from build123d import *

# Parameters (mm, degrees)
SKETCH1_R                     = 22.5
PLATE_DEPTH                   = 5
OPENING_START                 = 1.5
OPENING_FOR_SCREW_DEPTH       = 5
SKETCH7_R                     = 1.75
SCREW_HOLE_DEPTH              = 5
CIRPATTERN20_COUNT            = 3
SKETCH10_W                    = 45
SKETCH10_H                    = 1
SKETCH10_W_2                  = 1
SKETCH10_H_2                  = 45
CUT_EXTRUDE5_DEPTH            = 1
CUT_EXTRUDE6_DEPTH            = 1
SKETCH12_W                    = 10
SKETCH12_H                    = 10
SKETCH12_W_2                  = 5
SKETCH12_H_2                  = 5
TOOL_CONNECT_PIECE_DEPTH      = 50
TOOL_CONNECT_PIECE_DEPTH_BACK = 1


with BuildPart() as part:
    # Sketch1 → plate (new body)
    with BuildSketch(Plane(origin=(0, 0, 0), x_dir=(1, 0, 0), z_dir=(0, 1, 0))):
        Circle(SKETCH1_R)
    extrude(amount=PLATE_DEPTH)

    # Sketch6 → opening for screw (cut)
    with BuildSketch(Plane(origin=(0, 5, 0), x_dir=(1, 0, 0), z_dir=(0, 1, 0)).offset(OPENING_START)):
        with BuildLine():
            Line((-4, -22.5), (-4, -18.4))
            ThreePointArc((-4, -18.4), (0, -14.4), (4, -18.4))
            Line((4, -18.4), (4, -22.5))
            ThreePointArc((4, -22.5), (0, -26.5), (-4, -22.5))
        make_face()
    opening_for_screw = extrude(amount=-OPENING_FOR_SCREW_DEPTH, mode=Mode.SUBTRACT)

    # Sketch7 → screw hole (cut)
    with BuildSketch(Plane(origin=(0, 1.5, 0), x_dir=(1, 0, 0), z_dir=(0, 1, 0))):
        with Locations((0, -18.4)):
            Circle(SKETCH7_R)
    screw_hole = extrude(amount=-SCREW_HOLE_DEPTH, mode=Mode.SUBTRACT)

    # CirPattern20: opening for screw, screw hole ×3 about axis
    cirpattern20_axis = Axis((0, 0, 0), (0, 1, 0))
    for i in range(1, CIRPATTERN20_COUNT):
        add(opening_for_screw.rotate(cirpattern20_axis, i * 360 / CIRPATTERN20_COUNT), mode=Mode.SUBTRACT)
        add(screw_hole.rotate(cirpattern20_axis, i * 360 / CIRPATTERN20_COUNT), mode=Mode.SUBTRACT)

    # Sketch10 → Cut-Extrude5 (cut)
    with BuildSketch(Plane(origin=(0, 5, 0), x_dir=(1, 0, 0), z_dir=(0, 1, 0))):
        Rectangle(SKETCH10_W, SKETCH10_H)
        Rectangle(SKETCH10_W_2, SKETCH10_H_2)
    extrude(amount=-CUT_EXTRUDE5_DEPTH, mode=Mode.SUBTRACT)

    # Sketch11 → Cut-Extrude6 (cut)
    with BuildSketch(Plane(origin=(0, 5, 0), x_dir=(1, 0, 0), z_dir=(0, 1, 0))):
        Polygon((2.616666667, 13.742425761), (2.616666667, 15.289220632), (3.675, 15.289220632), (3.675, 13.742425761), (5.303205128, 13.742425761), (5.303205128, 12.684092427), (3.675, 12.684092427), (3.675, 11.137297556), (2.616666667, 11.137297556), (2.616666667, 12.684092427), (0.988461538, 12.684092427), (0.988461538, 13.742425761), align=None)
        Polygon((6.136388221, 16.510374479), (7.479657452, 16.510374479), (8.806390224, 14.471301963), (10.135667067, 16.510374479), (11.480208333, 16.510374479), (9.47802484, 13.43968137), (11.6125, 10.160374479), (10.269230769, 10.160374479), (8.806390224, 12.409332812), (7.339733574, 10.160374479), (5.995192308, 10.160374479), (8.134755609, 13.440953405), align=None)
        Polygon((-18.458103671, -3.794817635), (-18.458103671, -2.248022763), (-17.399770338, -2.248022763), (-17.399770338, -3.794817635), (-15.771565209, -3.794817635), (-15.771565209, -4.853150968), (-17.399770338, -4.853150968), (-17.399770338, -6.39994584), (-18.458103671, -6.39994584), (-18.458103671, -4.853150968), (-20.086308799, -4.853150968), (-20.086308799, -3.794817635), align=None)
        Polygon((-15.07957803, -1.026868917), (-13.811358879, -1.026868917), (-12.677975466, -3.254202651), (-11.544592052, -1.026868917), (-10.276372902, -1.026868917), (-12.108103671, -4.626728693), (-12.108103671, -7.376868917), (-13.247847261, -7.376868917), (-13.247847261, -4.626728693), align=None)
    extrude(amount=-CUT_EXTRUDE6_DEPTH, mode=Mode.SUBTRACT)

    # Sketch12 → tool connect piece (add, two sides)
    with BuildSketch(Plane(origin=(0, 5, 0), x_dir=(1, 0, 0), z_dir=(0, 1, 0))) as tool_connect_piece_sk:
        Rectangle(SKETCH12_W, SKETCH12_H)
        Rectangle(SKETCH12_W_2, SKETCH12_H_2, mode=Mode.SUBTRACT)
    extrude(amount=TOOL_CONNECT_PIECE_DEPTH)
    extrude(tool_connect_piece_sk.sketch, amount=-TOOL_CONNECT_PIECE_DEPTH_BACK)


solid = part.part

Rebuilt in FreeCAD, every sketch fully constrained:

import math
import FreeCAD as App
import Part
import Sketcher

V = App.Vector


def add_polygon(sketch, points):
    """Adds a closed chain of lines whose ends are joined by coincident constraints."""
    first, n = sketch.GeometryCount, len(points)
    for a, b in zip(points, points[1:] + points[:1]):
        sketch.addGeometry(Part.LineSegment(App.Vector(*a, 0), App.Vector(*b, 0)), False)
    for i in range(n):
        sketch.addConstraint(Sketcher.Constraint("Coincident", first + i, 2, first + (i + 1) % n, 1))

doc = App.newDocument("Part")
body = doc.addObject("PartDesign::Body", "Body")

# Sketch on XZ plane
sketch1 = body.newObject("Sketcher::SketchObject", "Sketch")
sketch1.AttachmentSupport = (doc.getObject("XZ_Plane"), [""])
sketch1.MapMode = "FlatFace"
sketch1.addGeometry(Part.Circle(V(0, 0, 0), V(0, 0, 1), 22.5), False)
sketch1.addConstraint(Sketcher.Constraint("Coincident", 0, 3, -1, 1))
sketch1.addConstraint(Sketcher.Constraint("Diameter", 0, 45.0))
pad1 = body.newObject("PartDesign::Pad", "Pad")
pad1.Profile = sketch1
pad1.Length = 5
pad1.Reversed = True

# Sketch on XZ plane
sketch2 = body.newObject("Sketcher::SketchObject", "Sketch001")
sketch2.AttachmentSupport = (doc.getObject("XZ_Plane"), [""])
sketch2.MapMode = "FlatFace"
sketch2.AttachmentOffset = App.Placement(V(0, 0, -6.5), App.Rotation())
sketch2.addGeometry(Part.LineSegment(V(-4, 18.4, 0), V(-4, 22.5, 0)), False)
sketch2.addGeometry(Part.ArcOfCircle(Part.Circle(V(0, 22.5, 0), V(0, 0, 1), 4), math.radians(0), math.radians(180)), False)
sketch2.addGeometry(Part.LineSegment(V(4, 22.5, 0), V(4, 18.4, 0)), False)
sketch2.addGeometry(Part.ArcOfCircle(Part.Circle(V(0, 18.4, 0), V(0, 0, 1), 4), math.radians(180), math.radians(360)), False)
sketch2.addConstraint(Sketcher.Constraint("Tangent", 0, 2, 1, 2))
sketch2.addConstraint(Sketcher.Constraint("Tangent", 1, 1, 2, 1))
sketch2.addConstraint(Sketcher.Constraint("Tangent", 2, 2, 3, 2))
sketch2.addConstraint(Sketcher.Constraint("Tangent", 3, 1, 0, 1))
sketch2.addConstraint(Sketcher.Constraint("Vertical", 0))
sketch2.addConstraint(Sketcher.Constraint("Vertical", 2))
sketch2.addConstraint(Sketcher.Constraint("PointOnObject", 1, 3, -2))
sketch2.addConstraint(Sketcher.Constraint("Radius", 1, 4.0))
sketch2.addConstraint(Sketcher.Constraint("DistanceY", 0, 1, 0, 2, 4.1))
sketch2.addConstraint(Sketcher.Constraint("DistanceY", -1, 1, 1, 3, 22.5))
pocket1 = body.newObject("PartDesign::Pocket", "Pocket")
pocket1.Profile = sketch2
pocket1.Length = 5
pocket1.Reversed = True

# Sketch on XZ plane
sketch3 = body.newObject("Sketcher::SketchObject", "Sketch002")
sketch3.AttachmentSupport = (doc.getObject("XZ_Plane"), [""])
sketch3.MapMode = "FlatFace"
sketch3.AttachmentOffset = App.Placement(V(0, 0, -1.5), App.Rotation())
sketch3.addGeometry(Part.Circle(V(0, 18.4, 0), V(0, 0, 1), 1.75), False)
sketch3.addConstraint(Sketcher.Constraint("PointOnObject", 0, 3, -2))
sketch3.addConstraint(Sketcher.Constraint("Diameter", 0, 3.5))
sketch3.addConstraint(Sketcher.Constraint("DistanceY", -1, 1, 0, 3, 18.4))
pocket2 = body.newObject("PartDesign::Pocket", "Pocket001")
pocket2.Profile = sketch3
pocket2.Length = 5
pocket2.Reversed = True
doc.recompute()

polarpattern = body.newObject("PartDesign::PolarPattern", "PolarPattern")
polarpattern.Originals = [pocket1, pocket2]
polarpattern.Axis = (doc.getObject("Y_Axis"), [""])
polarpattern.Angle = 360
polarpattern.Occurrences = 3
body.Tip = polarpattern

# Sketch on XZ plane
sketch4 = body.newObject("Sketcher::SketchObject", "Sketch003")
sketch4.AttachmentSupport = (doc.getObject("XZ_Plane"), [""])
sketch4.MapMode = "FlatFace"
sketch4.AttachmentOffset = App.Placement(V(0, 0, -5), App.Rotation())
add_polygon(sketch4, [(-22.5, -0.5), (-22.5, 0.5), (-0.5, 0.5), (-0.5, 22.5), (0.5, 22.5), (0.5, 0.5), (22.5, 0.5), (22.5, -0.5), (0.5, -0.5), (0.5, -22.5), (-0.5, -22.5), (-0.5, -0.5)])  # lines 0-11
sketch4.addConstraint(Sketcher.Constraint("Vertical", 0))
sketch4.addConstraint(Sketcher.Constraint("Horizontal", 1))
sketch4.addConstraint(Sketcher.Constraint("Vertical", 2))
sketch4.addConstraint(Sketcher.Constraint("Horizontal", 3))
sketch4.addConstraint(Sketcher.Constraint("Vertical", 4))
sketch4.addConstraint(Sketcher.Constraint("Horizontal", 5))
sketch4.addConstraint(Sketcher.Constraint("Vertical", 6))
sketch4.addConstraint(Sketcher.Constraint("Horizontal", 7))
sketch4.addConstraint(Sketcher.Constraint("Vertical", 8))
sketch4.addConstraint(Sketcher.Constraint("Horizontal", 9))
sketch4.addConstraint(Sketcher.Constraint("Vertical", 10))
sketch4.addConstraint(Sketcher.Constraint("Horizontal", 11))
sketch4.addConstraint(Sketcher.Constraint("Symmetric", 0, 2, 6, 2, -1, 1))
sketch4.addConstraint(Sketcher.Constraint("Symmetric", 2, 2, 8, 2, -1, 1))
sketch4.addConstraint(Sketcher.Constraint("Symmetric", 4, 2, 10, 2, -1, 1))
sketch4.addConstraint(Sketcher.Constraint("Symmetric", 1, 2, 4, 2, -2))
sketch4.addConstraint(Sketcher.Constraint("Equal", 9, 0))
sketch4.addConstraint(Sketcher.Constraint("Equal", 11, 2))
sketch4.addConstraint(Sketcher.Constraint("DistanceX", 1, 1, 1, 2, 22.0))
sketch4.addConstraint(Sketcher.Constraint("DistanceX", 3, 1, 3, 2, 1.0))
pocket3 = body.newObject("PartDesign::Pocket", "Pocket002")
pocket3.Profile = sketch4
pocket3.Length = 1
pocket3.Reversed = True

# Sketch on XZ plane
sketch5 = body.newObject("Sketcher::SketchObject", "Sketch004")
sketch5.AttachmentSupport = (doc.getObject("XZ_Plane"), [""])
sketch5.MapMode = "FlatFace"
sketch5.AttachmentOffset = App.Placement(V(0, 0, -5), App.Rotation())
add_polygon(sketch5, [(2.616667, -15.289221), (2.616667, -13.742426), (0.988462, -13.742426), (0.988462, -12.684092), (2.616667, -12.684092), (2.616667, -11.137298), (3.675, -11.137298), (3.675, -12.684092), (5.303205, -12.684092), (5.303205, -13.742426), (3.675, -13.742426), (3.675, -15.289221)])  # lines 0-11
add_polygon(sketch5, [(7.479657, -16.510374), (6.136388, -16.510374), (8.134756, -13.440953), (5.995192, -10.160374), (7.339734, -10.160374), (8.80639, -12.409333), (10.269231, -10.160374), (11.6125, -10.160374), (9.478025, -13.439681), (11.480208, -16.510374), (10.135667, -16.510374), (8.80639, -14.471302)])  # lines 12-23
add_polygon(sketch5, [(-18.458104, 2.248023), (-18.458104, 3.794818), (-20.086309, 3.794818), (-20.086309, 4.853151), (-18.458104, 4.853151), (-18.458104, 6.399946), (-17.39977, 6.399946), (-17.39977, 4.853151), (-15.771565, 4.853151), (-15.771565, 3.794818), (-17.39977, 3.794818), (-17.39977, 2.248023)])  # lines 24-35
add_polygon(sketch5, [(-13.811359, 1.026869), (-15.079578, 1.026869), (-13.247847, 4.626729), (-13.247847, 7.376869), (-12.108104, 7.376869), (-12.108104, 4.626729), (-10.276373, 1.026869), (-11.544592, 1.026869), (-12.677975, 3.254203)])  # lines 36-44
sketch5.addConstraint(Sketcher.Constraint("Vertical", 0))
sketch5.addConstraint(Sketcher.Constraint("Horizontal", 1))
sketch5.addConstraint(Sketcher.Constraint("Vertical", 2))
sketch5.addConstraint(Sketcher.Constraint("Horizontal", 3))
sketch5.addConstraint(Sketcher.Constraint("Vertical", 4))
sketch5.addConstraint(Sketcher.Constraint("Horizontal", 5))
sketch5.addConstraint(Sketcher.Constraint("Vertical", 6))
sketch5.addConstraint(Sketcher.Constraint("Horizontal", 7))
sketch5.addConstraint(Sketcher.Constraint("Vertical", 8))
sketch5.addConstraint(Sketcher.Constraint("Horizontal", 9))
sketch5.addConstraint(Sketcher.Constraint("Vertical", 10))
sketch5.addConstraint(Sketcher.Constraint("Horizontal", 11))
sketch5.addConstraint(Sketcher.Constraint("Horizontal", 12))
sketch5.addConstraint(Sketcher.Constraint("Horizontal", 15))
sketch5.addConstraint(Sketcher.Constraint("Horizontal", 18))
sketch5.addConstraint(Sketcher.Constraint("Horizontal", 21))
sketch5.addConstraint(Sketcher.Constraint("Vertical", 24))
sketch5.addConstraint(Sketcher.Constraint("Horizontal", 25))
sketch5.addConstraint(Sketcher.Constraint("Vertical", 26))
sketch5.addConstraint(Sketcher.Constraint("Horizontal", 27))
sketch5.addConstraint(Sketcher.Constraint("Vertical", 28))
sketch5.addConstraint(Sketcher.Constraint("Horizontal", 29))
sketch5.addConstraint(Sketcher.Constraint("Vertical", 30))
sketch5.addConstraint(Sketcher.Constraint("Horizontal", 31))
sketch5.addConstraint(Sketcher.Constraint("Vertical", 32))
sketch5.addConstraint(Sketcher.Constraint("Horizontal", 33))
sketch5.addConstraint(Sketcher.Constraint("Vertical", 34))
sketch5.addConstraint(Sketcher.Constraint("Horizontal", 35))
sketch5.addConstraint(Sketcher.Constraint("Horizontal", 36))
sketch5.addConstraint(Sketcher.Constraint("Vertical", 38))
sketch5.addConstraint(Sketcher.Constraint("Horizontal", 39))
sketch5.addConstraint(Sketcher.Constraint("Vertical", 40))
sketch5.addConstraint(Sketcher.Constraint("Horizontal", 42))
sketch5.addConstraint(Sketcher.Constraint("Horizontal", 3, 2, 6, 2))
sketch5.addConstraint(Sketcher.Constraint("Horizontal", 1, 2, 8, 2))
sketch5.addConstraint(Sketcher.Constraint("Horizontal", 15, 2, 17, 2))
sketch5.addConstraint(Sketcher.Constraint("Horizontal", 12, 2, 20, 2))
sketch5.addConstraint(Sketcher.Constraint("Horizontal", 27, 2, 30, 2))
sketch5.addConstraint(Sketcher.Constraint("Horizontal", 25, 2, 32, 2))
sketch5.addConstraint(Sketcher.Constraint("Horizontal", 37, 2, 40, 2))
sketch5.addConstraint(Sketcher.Constraint("Horizontal", 36, 2, 41, 2))
sketch5.addConstraint(Sketcher.Constraint("Vertical", 0, 2, 3, 2))
sketch5.addConstraint(Sketcher.Constraint("Vertical", 6, 2, 9, 2))
sketch5.addConstraint(Sketcher.Constraint("Vertical", 16, 2, 22, 2))
sketch5.addConstraint(Sketcher.Constraint("Vertical", 24, 2, 27, 2))
sketch5.addConstraint(Sketcher.Constraint("Vertical", 30, 2, 33, 2))
sketch5.addConstraint(Sketcher.Constraint("Equal", 3, 7))
sketch5.addConstraint(Sketcher.Constraint("Equal", 12, 18))
sketch5.addConstraint(Sketcher.Constraint("Equal", 15, 21))
sketch5.addConstraint(Sketcher.Constraint("Equal", 9, 25))
sketch5.addConstraint(Sketcher.Constraint("Equal", 11, 29))
sketch5.addConstraint(Sketcher.Constraint("Equal", 27, 31))
sketch5.addConstraint(Sketcher.Constraint("Equal", 36, 42))
sketch5.addConstraint(Sketcher.Constraint("Equal", 35, 2))
sketch5.addConstraint(Sketcher.Constraint("Equal", 0, 4))
sketch5.addConstraint(Sketcher.Constraint("Equal", 10, 24))
sketch5.addConstraint(Sketcher.Constraint("Equal", 8, 26))
sketch5.addConstraint(Sketcher.Constraint("Equal", 24, 28))
sketch5.addConstraint(Sketcher.Constraint("Equal", 37, 41))
sketch5.addConstraint(Sketcher.Constraint("Equal", 43, 44))
sketch5.addConstraint(Sketcher.Constraint("DistanceY", 20, 2, 18, 2, 6.35))
sketch5.addConstraint(Sketcher.Constraint("DistanceY", 41, 2, 39, 2, 6.35))
sketch5.addConstraint(Sketcher.Constraint("DistanceX", -1, 1, 5, 2, 3.675))
sketch5.addConstraint(Sketcher.Constraint("Distance", 23, 2.432701))
sketch5.addConstraint(Sketcher.Constraint("DistanceX", 12, 2, 12, 1, 1.343269))
sketch5.addConstraint(Sketcher.Constraint("DistanceX", 15, 1, 15, 2, 1.344541))
sketch5.addConstraint(Sketcher.Constraint("DistanceX", 36, 2, 36, 1, 1.268219))
sketch5.addConstraint(Sketcher.Constraint("DistanceY", 38, 1, 38, 2, 2.75014))
sketch5.addConstraint(Sketcher.Constraint("DistanceX", -1, 1, 18, 2, 11.6125))
sketch5.addConstraint(Sketcher.Constraint("DistanceY", 22, 2, -1, 1, 14.471302))
sketch5.addConstraint(Sketcher.Constraint("DistanceX", 23, 2, 13, 2, 0.655098))
sketch5.addConstraint(Sketcher.Constraint("Distance", 16, 2.684939))
sketch5.addConstraint(Sketcher.Constraint("Distance", 19, 3.912779))
sketch5.addConstraint(Sketcher.Constraint("Distance", 22, 2.43409))
sketch5.addConstraint(Sketcher.Constraint("DistanceX", 1, 2, 1, 1, 1.628205))
sketch5.addConstraint(Sketcher.Constraint("DistanceX", 5, 1, 5, 2, 1.058333))
sketch5.addConstraint(Sketcher.Constraint("DistanceX", 39, 1, 39, 2, 1.139744))
sketch5.addConstraint(Sketcher.Constraint("DistanceY", 0, 1, 0, 2, 1.546795))
sketch5.addConstraint(Sketcher.Constraint("DistanceY", 10, 2, -1, 1, 15.289221))
sketch5.addConstraint(Sketcher.Constraint("DistanceX", -1, 1, 12, 2, 6.136388))
sketch5.addConstraint(Sketcher.Constraint("DistanceX", -1, 1, 16, 2, 8.80639))
sketch5.addConstraint(Sketcher.Constraint("DistanceY", 19, 2, -1, 1, 13.439681))
sketch5.addConstraint(Sketcher.Constraint("DistanceX", 25, 2, -1, 1, 20.086309))
sketch5.addConstraint(Sketcher.Constraint("DistanceY", -1, 1, 26, 2, 4.853151))
sketch5.addConstraint(Sketcher.Constraint("DistanceX", 36, 2, -1, 1, 15.079578))
sketch5.addConstraint(Sketcher.Constraint("DistanceY", -1, 1, 36, 2, 1.026869))
sketch5.addConstraint(Sketcher.Constraint("DistanceY", 13, 2, 7, 2, 0.756861))
sketch5.addConstraint(Sketcher.Constraint("DistanceX", 7, 2, 15, 2, 2.036528))
sketch5.addConstraint(Sketcher.Constraint("DistanceX", 36, 2, 37, 2, 1.831731))
sketch5.addConstraint(Sketcher.Constraint("Distance", 43, 2.499115))
pocket4 = body.newObject("PartDesign::Pocket", "Pocket003")
pocket4.Profile = sketch5
pocket4.Length = 1
pocket4.Reversed = True

# Sketch on XZ plane
sketch6 = body.newObject("Sketcher::SketchObject", "Sketch005")
sketch6.AttachmentSupport = (doc.getObject("XZ_Plane"), [""])
sketch6.MapMode = "FlatFace"
sketch6.AttachmentOffset = App.Placement(V(0, 0, -5), App.Rotation())
add_polygon(sketch6, [(-5, -5), (-5, 5), (5, 5), (5, -5)])  # lines 0-3
add_polygon(sketch6, [(2.5, 2.5), (-2.5, 2.5), (-2.5, -2.5), (2.5, -2.5)])  # lines 4-7
sketch6.addConstraint(Sketcher.Constraint("Vertical", 0))
sketch6.addConstraint(Sketcher.Constraint("Horizontal", 1))
sketch6.addConstraint(Sketcher.Constraint("Vertical", 2))
sketch6.addConstraint(Sketcher.Constraint("Horizontal", 3))
sketch6.addConstraint(Sketcher.Constraint("Horizontal", 4))
sketch6.addConstraint(Sketcher.Constraint("Vertical", 5))
sketch6.addConstraint(Sketcher.Constraint("Horizontal", 6))
sketch6.addConstraint(Sketcher.Constraint("Vertical", 7))
sketch6.addConstraint(Sketcher.Constraint("Symmetric", 0, 2, 2, 2, -1, 1))
sketch6.addConstraint(Sketcher.Constraint("Symmetric", 4, 2, 6, 2, -1, 1))
sketch6.addConstraint(Sketcher.Constraint("Equal", 3, 0))
sketch6.addConstraint(Sketcher.Constraint("Equal", 6, 5))
sketch6.addConstraint(Sketcher.Constraint("DistanceX", 1, 1, 1, 2, 10.0))
sketch6.addConstraint(Sketcher.Constraint("DistanceX", 4, 2, 4, 1, 5.0))
pad2 = body.newObject("PartDesign::Pad", "Pad001")
pad2.Profile = sketch6
pad2.Type = "TwoLengths"
pad2.Length = 50
pad2.Length2 = 1
pad2.Reversed = True

doc.recompute()
